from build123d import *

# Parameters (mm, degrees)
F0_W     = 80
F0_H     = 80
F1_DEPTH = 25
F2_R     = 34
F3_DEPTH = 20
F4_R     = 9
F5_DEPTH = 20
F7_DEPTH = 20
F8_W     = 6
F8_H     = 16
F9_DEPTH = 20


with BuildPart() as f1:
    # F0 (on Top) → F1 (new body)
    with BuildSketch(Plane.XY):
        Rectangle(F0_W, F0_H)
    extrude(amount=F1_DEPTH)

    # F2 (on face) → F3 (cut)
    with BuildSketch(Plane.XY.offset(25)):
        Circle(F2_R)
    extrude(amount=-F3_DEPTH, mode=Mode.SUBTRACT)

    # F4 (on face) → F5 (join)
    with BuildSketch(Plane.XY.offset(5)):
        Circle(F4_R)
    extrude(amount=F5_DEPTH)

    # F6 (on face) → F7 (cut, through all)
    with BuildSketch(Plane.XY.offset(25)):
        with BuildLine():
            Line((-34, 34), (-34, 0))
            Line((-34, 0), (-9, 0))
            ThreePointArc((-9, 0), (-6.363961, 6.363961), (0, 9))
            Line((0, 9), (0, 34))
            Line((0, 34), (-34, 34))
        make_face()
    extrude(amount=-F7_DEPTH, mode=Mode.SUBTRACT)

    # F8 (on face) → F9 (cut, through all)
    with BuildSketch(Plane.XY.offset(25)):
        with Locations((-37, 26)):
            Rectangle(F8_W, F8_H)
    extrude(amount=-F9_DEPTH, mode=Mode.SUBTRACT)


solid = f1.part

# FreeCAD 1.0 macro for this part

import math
import FreeCAD as App
import Part
import Sketcher
from FreeCAD import Vector
Q = App.Units.Quantity


def add_polygon(sketch, points):
    """Adds a closed chain of lines whose ends are joined by coincident constraints."""
    first, n = sketch.GeometryCount, len(points)
    for a, b in zip(points, points[1:] + points[:1]):
        sketch.addGeometry(Part.LineSegment(App.Vector(*a, 0), App.Vector(*b, 0)), False)
    for i in range(n):
        sketch.addConstraint(Sketcher.Constraint("Coincident", first + i, 2, first + (i + 1) % n, 1))

doc = App.newDocument("Part")
body = doc.addObject("PartDesign::Body", "Body")

# Sketch on XY plane
sketch1 = body.newObject("Sketcher::SketchObject", "Sketch")
sketch1.AttachmentSupport = (doc.getObject("XY_Plane"), [""])
sketch1.MapMode = "FlatFace"
add_polygon(sketch1, [(-40, 40), (-40, -40), (40, -40), (40, 40)])  # lines 0-3
sketch1.addConstraint([
    Sketcher.Constraint("Vertical", 0),
    Sketcher.Constraint("Horizontal", 1),
    Sketcher.Constraint("Vertical", 2),
    Sketcher.Constraint("Horizontal", 3),
    Sketcher.Constraint("Symmetric", 0, 2, 2, 2, -1, 1),
    Sketcher.Constraint("Equal", 3, 0),
    Sketcher.Constraint("DistanceX", 1, 1, 1, 2, Q("80 mm")),
])
pad1 = body.newObject("PartDesign::Pad", "Pad")
pad1.Profile = sketch1
pad1.Length = 25

# Sketch on XY plane
sketch2 = body.newObject("Sketcher::SketchObject", "Sketch001")
sketch2.AttachmentSupport = (doc.getObject("XY_Plane"), [""])
sketch2.MapMode = "FlatFace"
sketch2.AttachmentOffset = App.Placement(Vector(0, 0, 25), App.Rotation())
sketch2.addGeometry(Part.Circle(Vector(0, 0, 0), Vector(0, 0, 1), 34), False)
sketch2.addConstraint([
    Sketcher.Constraint("Coincident", 0, 3, -1, 1),
    Sketcher.Constraint("Diameter", 0, Q("68 mm")),
])
pocket1 = body.newObject("PartDesign::Pocket", "Pocket")
pocket1.Profile = sketch2
pocket1.Length = 20

# Sketch on XY plane
sketch3 = body.newObject("Sketcher::SketchObject", "Sketch002")
sketch3.AttachmentSupport = (doc.getObject("XY_Plane"), [""])
sketch3.MapMode = "FlatFace"
sketch3.AttachmentOffset = App.Placement(Vector(0, 0, 5), App.Rotation())
sketch3.addGeometry(Part.Circle(Vector(0, 0, 0), Vector(0, 0, 1), 9), False)
sketch3.addConstraint([
    Sketcher.Constraint("Coincident", 0, 3, -1, 1),
    Sketcher.Constraint("Diameter", 0, Q("18 mm")),
])
pad2 = body.newObject("PartDesign::Pad", "Pad001")
pad2.Profile = sketch3
pad2.Length = 20

# Sketch on XY plane
sketch4 = body.newObject("Sketcher::SketchObject", "Sketch003")
sketch4.AttachmentSupport = (doc.getObject("XY_Plane"), [""])
sketch4.MapMode = "FlatFace"
sketch4.AttachmentOffset = App.Placement(Vector(0, 0, 25), App.Rotation())
sketch4.addGeometry([
    Part.LineSegment(Vector(-34, 34, 0), Vector(-34, 0, 0)),  # 0
    Part.LineSegment(Vector(-34, 0, 0), Vector(-9, 0, 0)),  # 1
    Part.ArcOfCircle(Part.Circle(Vector(0, 0, 0), Vector(0, 0, 1), 9), math.radians(90.000001), math.radians(179.999999)),  # 2
    Part.LineSegment(Vector(0, 9, 0), Vector(0, 34, 0)),  # 3
    Part.LineSegment(Vector(0, 34, 0), Vector(-34, 34, 0)),  # 4
], False)
sketch4.addConstraint([
    Sketcher.Constraint("Coincident", 0, 2, 1, 1),
    Sketcher.Constraint("Coincident", 1, 2, 2, 2),
    Sketcher.Constraint("Coincident", 2, 1, 3, 1),
    Sketcher.Constraint("Coincident", 3, 2, 4, 1),
    Sketcher.Constraint("Coincident", 4, 2, 0, 1),
    Sketcher.Constraint("Vertical", 0),
    Sketcher.Constraint("Horizontal", 1),
    Sketcher.Constraint("Vertical", 3),
    Sketcher.Constraint("Horizontal", 4),
    Sketcher.Constraint("Coincident", 2, 3, -1, 1),
    Sketcher.Constraint("PointOnObject", 0, 2, -1),
    Sketcher.Constraint("PointOnObject", 2, 1, -2),
    Sketcher.Constraint("Equal", 4, 0),
    Sketcher.Constraint("Radius", 2, Q("9 mm")),
    Sketcher.Constraint("DistanceX", 1, 1, 1, 2, Q("25 mm")),
])
pocket2 = body.newObject("PartDesign::Pocket", "Pocket001")
pocket2.Profile = sketch4
pocket2.Length = 20

# Sketch on XY plane
sketch5 = body.newObject("Sketcher::SketchObject", "Sketch004")
sketch5.AttachmentSupport = (doc.getObject("XY_Plane"), [""])
sketch5.MapMode = "FlatFace"
sketch5.AttachmentOffset = App.Placement(Vector(0, 0, 25), App.Rotation())
add_polygon(sketch5, [(-40, 34), (-40, 18), (-34, 18), (-34, 34)])  # lines 0-3
sketch5.addConstraint([
    Sketcher.Constraint("Vertical", 0),
    Sketcher.Constraint("Horizontal", 1),
    Sketcher.Constraint("Vertical", 2),
    Sketcher.Constraint("Horizontal", 3),
    Sketcher.Constraint("DistanceX", 1, 1, 1, 2, Q("6 mm")),
    Sketcher.Constraint("DistanceY", 0, 2, 0, 1, Q("16 mm")),
    Sketcher.Constraint("DistanceX", 0, 2, -1, 1, Q("40 mm")),
    Sketcher.Constraint("DistanceY", -1, 1, 0, 2, Q("18 mm")),
])
pocket3 = body.newObject("PartDesign::Pocket", "Pocket002")
pocket3.Profile = sketch5
pocket3.Length = 20

doc.recompute()
